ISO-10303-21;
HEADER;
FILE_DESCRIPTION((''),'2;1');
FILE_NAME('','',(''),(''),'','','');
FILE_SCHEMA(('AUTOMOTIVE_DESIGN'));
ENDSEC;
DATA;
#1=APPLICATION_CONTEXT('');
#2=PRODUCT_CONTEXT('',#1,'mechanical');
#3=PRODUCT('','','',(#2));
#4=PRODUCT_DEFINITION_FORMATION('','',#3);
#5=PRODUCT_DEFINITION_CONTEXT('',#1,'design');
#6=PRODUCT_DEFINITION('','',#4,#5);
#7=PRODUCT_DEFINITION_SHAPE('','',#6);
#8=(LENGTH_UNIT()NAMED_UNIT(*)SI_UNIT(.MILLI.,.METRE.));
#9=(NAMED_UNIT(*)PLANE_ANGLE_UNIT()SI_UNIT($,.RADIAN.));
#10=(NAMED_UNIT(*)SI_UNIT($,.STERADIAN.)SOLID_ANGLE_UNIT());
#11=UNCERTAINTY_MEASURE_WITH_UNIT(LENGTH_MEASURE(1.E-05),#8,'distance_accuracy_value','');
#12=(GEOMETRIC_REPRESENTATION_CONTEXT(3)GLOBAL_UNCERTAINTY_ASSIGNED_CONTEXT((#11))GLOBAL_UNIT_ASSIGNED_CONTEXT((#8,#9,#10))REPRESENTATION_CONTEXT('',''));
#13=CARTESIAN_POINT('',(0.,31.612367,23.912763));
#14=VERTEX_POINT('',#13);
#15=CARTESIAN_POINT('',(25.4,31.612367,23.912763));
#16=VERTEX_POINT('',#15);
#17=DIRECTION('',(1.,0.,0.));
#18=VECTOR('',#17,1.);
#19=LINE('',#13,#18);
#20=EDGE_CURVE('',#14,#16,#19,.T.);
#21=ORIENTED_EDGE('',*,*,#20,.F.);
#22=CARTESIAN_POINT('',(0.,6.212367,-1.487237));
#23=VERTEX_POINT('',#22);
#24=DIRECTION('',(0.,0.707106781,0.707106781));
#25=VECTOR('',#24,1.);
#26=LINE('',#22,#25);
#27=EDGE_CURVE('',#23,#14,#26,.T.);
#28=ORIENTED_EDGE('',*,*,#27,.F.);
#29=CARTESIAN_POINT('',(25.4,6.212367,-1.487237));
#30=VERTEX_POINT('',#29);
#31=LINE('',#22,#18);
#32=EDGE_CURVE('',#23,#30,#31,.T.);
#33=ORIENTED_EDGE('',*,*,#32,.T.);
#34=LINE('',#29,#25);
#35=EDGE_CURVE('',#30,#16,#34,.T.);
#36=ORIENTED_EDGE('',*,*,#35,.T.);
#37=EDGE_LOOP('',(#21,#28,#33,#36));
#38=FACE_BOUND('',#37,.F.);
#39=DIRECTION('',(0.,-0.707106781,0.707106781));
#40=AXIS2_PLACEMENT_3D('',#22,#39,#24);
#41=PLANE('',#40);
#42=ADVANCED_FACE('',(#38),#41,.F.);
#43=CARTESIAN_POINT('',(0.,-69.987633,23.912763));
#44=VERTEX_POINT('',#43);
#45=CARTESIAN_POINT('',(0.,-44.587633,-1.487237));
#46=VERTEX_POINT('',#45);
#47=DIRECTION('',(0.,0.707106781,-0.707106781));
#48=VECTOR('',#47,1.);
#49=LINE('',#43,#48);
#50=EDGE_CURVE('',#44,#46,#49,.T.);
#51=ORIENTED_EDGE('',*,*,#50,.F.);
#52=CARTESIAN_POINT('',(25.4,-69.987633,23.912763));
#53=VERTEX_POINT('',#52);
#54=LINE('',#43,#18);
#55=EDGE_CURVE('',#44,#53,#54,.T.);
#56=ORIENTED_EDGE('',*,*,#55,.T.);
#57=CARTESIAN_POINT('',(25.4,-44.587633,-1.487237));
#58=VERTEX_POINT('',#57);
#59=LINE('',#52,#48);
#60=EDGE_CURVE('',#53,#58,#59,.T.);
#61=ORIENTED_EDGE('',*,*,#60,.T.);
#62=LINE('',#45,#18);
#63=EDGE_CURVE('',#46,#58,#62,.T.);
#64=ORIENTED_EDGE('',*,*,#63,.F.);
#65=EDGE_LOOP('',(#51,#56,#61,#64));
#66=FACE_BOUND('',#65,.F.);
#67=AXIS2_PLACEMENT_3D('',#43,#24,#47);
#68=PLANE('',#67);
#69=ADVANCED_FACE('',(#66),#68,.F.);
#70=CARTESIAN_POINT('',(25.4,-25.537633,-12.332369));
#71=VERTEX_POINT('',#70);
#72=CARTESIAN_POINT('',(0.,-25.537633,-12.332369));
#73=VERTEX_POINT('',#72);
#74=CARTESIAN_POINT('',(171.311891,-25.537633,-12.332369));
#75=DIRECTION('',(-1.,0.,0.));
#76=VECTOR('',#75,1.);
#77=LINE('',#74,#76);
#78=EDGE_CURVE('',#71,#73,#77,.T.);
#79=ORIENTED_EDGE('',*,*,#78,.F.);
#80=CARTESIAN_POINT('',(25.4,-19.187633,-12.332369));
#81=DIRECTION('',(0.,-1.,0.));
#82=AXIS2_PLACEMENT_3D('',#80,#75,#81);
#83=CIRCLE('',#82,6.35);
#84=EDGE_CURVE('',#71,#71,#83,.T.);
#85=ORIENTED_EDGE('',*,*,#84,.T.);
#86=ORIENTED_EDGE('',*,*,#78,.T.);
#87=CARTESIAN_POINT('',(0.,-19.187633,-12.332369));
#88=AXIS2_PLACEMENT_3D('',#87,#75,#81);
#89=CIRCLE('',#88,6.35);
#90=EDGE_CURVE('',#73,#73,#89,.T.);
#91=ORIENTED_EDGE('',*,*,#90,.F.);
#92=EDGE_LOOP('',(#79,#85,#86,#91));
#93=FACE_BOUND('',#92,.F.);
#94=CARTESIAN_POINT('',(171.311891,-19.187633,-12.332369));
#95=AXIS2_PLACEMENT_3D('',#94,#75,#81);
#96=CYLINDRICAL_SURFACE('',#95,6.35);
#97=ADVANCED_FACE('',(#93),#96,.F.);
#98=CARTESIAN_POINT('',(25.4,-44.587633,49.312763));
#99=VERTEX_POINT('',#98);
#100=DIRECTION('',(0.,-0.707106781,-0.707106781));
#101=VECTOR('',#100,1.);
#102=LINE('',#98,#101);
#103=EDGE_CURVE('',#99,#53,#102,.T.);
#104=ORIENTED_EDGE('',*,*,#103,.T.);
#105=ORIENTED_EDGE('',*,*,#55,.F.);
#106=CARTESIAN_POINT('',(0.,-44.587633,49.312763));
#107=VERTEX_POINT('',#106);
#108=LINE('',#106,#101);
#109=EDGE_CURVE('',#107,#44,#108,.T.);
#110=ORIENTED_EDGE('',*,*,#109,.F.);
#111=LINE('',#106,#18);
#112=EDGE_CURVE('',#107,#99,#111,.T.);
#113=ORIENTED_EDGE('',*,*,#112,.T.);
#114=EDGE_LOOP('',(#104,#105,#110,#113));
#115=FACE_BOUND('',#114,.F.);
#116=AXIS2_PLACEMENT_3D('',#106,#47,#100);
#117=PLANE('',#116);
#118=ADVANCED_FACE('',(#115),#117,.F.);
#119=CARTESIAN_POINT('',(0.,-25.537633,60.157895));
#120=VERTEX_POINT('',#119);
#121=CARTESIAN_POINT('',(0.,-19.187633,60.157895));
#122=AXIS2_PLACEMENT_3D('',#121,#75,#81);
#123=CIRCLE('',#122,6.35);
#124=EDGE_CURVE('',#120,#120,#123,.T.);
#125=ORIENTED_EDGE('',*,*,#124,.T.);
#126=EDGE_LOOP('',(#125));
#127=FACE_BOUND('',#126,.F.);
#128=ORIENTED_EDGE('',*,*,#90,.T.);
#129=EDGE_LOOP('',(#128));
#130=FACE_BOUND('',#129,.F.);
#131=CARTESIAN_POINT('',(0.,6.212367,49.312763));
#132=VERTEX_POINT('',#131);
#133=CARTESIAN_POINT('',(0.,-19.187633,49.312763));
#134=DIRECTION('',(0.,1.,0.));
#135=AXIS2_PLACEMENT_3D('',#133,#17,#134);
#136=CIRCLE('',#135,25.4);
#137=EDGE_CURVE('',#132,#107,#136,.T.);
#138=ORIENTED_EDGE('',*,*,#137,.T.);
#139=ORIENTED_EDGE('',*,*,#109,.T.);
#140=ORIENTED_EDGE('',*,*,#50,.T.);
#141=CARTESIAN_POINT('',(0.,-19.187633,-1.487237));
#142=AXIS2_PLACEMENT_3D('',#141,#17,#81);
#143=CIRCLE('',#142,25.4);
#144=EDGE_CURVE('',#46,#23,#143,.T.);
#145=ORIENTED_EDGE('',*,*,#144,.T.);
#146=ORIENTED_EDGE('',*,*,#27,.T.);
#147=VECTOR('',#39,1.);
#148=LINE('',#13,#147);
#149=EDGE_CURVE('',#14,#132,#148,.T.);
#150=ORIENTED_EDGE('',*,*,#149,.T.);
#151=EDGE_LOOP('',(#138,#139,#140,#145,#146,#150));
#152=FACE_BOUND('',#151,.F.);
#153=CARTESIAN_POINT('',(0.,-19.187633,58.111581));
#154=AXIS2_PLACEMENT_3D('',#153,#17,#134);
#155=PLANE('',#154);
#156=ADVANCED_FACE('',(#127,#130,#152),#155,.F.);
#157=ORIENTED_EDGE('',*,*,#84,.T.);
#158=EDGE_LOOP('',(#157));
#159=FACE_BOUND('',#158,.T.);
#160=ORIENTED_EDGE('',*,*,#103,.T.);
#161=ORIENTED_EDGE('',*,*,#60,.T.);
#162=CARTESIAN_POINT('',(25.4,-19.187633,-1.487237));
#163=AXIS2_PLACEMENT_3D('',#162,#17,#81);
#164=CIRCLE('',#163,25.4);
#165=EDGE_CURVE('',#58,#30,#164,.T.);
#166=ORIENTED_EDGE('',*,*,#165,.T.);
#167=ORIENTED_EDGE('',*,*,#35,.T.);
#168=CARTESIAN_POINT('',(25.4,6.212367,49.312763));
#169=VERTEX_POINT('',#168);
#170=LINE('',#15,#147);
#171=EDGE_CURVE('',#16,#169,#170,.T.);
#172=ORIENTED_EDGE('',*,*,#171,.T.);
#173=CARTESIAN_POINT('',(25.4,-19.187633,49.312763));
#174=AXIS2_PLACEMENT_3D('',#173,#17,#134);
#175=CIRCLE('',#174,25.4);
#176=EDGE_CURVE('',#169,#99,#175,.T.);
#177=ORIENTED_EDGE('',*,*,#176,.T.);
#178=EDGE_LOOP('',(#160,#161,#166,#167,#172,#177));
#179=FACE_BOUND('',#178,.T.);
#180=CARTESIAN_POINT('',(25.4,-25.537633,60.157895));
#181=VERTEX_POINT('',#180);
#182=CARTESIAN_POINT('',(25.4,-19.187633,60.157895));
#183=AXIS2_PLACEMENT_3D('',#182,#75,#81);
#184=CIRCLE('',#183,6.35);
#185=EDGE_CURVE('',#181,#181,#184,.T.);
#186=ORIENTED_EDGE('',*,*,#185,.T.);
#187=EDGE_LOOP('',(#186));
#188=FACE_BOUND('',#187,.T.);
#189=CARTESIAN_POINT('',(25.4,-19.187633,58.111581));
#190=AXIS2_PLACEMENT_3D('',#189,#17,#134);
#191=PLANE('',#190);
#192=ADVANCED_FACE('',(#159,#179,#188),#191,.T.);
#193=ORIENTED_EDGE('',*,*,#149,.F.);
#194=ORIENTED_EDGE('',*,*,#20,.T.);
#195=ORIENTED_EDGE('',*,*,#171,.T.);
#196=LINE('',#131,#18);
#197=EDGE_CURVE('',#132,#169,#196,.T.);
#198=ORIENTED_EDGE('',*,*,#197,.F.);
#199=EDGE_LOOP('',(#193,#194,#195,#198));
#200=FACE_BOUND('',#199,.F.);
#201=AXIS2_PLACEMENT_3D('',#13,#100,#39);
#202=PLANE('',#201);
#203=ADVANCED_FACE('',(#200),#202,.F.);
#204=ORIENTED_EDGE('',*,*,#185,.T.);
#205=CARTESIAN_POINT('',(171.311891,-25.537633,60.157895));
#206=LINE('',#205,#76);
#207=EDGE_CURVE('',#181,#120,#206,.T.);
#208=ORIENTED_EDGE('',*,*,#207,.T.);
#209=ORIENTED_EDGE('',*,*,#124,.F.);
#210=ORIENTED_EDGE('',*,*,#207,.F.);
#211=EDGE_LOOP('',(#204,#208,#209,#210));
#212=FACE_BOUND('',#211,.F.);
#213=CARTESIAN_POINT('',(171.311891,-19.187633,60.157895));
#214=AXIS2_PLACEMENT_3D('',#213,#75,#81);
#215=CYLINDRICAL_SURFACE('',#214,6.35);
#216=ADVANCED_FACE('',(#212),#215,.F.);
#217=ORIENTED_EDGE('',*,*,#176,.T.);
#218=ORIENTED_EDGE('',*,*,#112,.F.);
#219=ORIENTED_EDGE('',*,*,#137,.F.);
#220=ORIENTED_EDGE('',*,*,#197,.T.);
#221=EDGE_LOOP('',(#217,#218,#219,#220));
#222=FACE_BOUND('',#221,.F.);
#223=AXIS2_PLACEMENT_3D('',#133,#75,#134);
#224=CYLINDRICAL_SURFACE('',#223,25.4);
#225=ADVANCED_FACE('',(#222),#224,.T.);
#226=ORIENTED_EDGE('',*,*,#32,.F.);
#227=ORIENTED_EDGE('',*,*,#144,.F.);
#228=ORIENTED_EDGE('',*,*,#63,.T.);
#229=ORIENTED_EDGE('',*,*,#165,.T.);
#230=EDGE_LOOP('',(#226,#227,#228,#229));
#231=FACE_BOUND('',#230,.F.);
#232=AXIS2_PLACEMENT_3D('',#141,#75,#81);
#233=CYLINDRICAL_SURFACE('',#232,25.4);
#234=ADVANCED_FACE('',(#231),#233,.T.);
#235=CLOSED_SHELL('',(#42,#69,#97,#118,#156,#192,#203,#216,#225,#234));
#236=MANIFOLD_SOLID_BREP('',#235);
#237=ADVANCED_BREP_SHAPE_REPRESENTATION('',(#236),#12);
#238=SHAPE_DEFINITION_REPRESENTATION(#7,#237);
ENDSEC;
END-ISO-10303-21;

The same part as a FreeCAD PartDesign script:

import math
import FreeCAD as App
import Part
import Sketcher
Q = App.Units.Quantity

doc = App.newDocument("Part")
body = doc.addObject("PartDesign::Body", "Body")

# Sketch on YZ plane
sketch1 = body.newObject("Sketcher::SketchObject", "Sketch")
sketch1.AttachmentSupport = (doc.getObject("YZ_Plane"), [""])
sketch1.MapMode = "FlatFace"
sketch1.addGeometry(Part.ArcOfCircle(Part.Circle(App.Vector(-19.187633, 49.312763, 0), App.Vector(0, 0, 1), 25.4), math.radians(0), math.radians(180)), False)
sketch1.addGeometry(Part.LineSegment(App.Vector(-44.587633, 49.312763, 0), App.Vector(-69.987633, 23.912763, 0)), False)
sketch1.addGeometry(Part.LineSegment(App.Vector(-69.987633, 23.912763, 0), App.Vector(-44.587633, -1.487237, 0)), False)
sketch1.addGeometry(Part.ArcOfCircle(Part.Circle(App.Vector(-19.187633, -1.487237, 0), App.Vector(0, 0, 1), 25.4), math.radians(180), math.radians(360)), False)
sketch1.addGeometry(Part.LineSegment(App.Vector(6.212367, -1.487237, 0), App.Vector(31.612367, 23.912763, 0)), False)
sketch1.addGeometry(Part.LineSegment(App.Vector(31.612367, 23.912763, 0), App.Vector(6.212367, 49.312763, 0)), False)
sketch1.addConstraint(Sketcher.Constraint("Coincident", 0, 2, 1, 1))
sketch1.addConstraint(Sketcher.Constraint("Coincident", 1, 2, 2, 1))
sketch1.addConstraint(Sketcher.Constraint("Coincident", 2, 2, 3, 1))
sketch1.addConstraint(Sketcher.Constraint("Coincident", 3, 2, 4, 1))
sketch1.addConstraint(Sketcher.Constraint("Coincident", 4, 2, 5, 1))
sketch1.addConstraint(Sketcher.Constraint("Coincident", 5, 2, 0, 1))
sketch1.addConstraint(Sketcher.Constraint("Equal", 0, 3))
sketch1.addConstraint(Sketcher.Constraint("Perpendicular", 1, 2))
sketch1.addConstraint(Sketcher.Constraint("Perpendicular", 2, 4))
sketch1.addConstraint(Sketcher.Constraint("Perpendicular", 4, 5))
sketch1.addConstraint(Sketcher.Constraint("Horizontal", 3, 3, 2, 2))
sketch1.addConstraint(Sketcher.Constraint("Horizontal", 2, 2, 3, 2))
sketch1.addConstraint(Sketcher.Constraint("Horizontal", 1, 2, 4, 2))
sketch1.addConstraint(Sketcher.Constraint("Horizontal", 0, 2, 5, 2))
sketch1.addConstraint(Sketcher.Constraint("Vertical", 0, 3, 3, 3))
sketch1.addConstraint(Sketcher.Constraint("Radius", 0, Q("1 in")))
sketch1.addConstraint(Sketcher.Constraint("DistanceY", 3, 3, 0, 3, Q("2 in")))
sketch1.addConstraint(Sketcher.Constraint("DistanceY", 3, 3, 0, 2, Q("2 in")))
sketch1.addConstraint(Sketcher.Constraint("DistanceX", 0, 3, -1, 1, Q("19.187633 mm")))
sketch1.addConstraint(Sketcher.Constraint("DistanceY", -1, 1, 0, 3, Q("49.312763 mm")))
pad1 = body.newObject("PartDesign::Pad", "Pad")
pad1.Profile = sketch1
pad1.Length = Q("1 in")

# Sketch on YZ plane
sketch2 = body.newObject("Sketcher::SketchObject", "Sketch001")
sketch2.AttachmentSupport = (doc.getObject("YZ_Plane"), [""])
sketch2.MapMode = "FlatFace"
sketch2.AttachmentOffset = App.Placement(App.Vector(0, 0, 1 * 25.4), App.Rotation())
sketch2.addGeometry(Part.Circle(App.Vector(-19.187633, 60.157895, 0), App.Vector(0, 0, 1), 6.35), False)
sketch2.addGeometry(Part.Circle(App.Vector(-19.187633, -12.332369, 0), App.Vector(0, 0, 1), 6.35), False)
sketch2.addConstraint(Sketcher.Constraint("Equal", 0, 1))
sketch2.addConstraint(Sketcher.Constraint("Vertical", 0, 3, 1, 3))
sketch2.addConstraint(Sketcher.Constraint("Diameter", 0, Q("0.5 in")))
sketch2.addConstraint(Sketcher.Constraint("DistanceY", 1, 3, -1, 1, Q("12.332369 mm")))
sketch2.addConstraint(Sketcher.Constraint("DistanceX", 0, 3, -1, 1, Q("19.187633 mm")))
sketch2.addConstraint(Sketcher.Constraint("DistanceY", -1, 1, 0, 3, Q("60.157895 mm")))
doc.recompute()
hole = body.newObject("PartDesign::Hole", "Hole")
hole.Profile = sketch2
hole.ThreadType = "None"
hole.Diameter = Q("0.5 in")
hole.DepthType = "ThroughAll"

doc.recompute()
